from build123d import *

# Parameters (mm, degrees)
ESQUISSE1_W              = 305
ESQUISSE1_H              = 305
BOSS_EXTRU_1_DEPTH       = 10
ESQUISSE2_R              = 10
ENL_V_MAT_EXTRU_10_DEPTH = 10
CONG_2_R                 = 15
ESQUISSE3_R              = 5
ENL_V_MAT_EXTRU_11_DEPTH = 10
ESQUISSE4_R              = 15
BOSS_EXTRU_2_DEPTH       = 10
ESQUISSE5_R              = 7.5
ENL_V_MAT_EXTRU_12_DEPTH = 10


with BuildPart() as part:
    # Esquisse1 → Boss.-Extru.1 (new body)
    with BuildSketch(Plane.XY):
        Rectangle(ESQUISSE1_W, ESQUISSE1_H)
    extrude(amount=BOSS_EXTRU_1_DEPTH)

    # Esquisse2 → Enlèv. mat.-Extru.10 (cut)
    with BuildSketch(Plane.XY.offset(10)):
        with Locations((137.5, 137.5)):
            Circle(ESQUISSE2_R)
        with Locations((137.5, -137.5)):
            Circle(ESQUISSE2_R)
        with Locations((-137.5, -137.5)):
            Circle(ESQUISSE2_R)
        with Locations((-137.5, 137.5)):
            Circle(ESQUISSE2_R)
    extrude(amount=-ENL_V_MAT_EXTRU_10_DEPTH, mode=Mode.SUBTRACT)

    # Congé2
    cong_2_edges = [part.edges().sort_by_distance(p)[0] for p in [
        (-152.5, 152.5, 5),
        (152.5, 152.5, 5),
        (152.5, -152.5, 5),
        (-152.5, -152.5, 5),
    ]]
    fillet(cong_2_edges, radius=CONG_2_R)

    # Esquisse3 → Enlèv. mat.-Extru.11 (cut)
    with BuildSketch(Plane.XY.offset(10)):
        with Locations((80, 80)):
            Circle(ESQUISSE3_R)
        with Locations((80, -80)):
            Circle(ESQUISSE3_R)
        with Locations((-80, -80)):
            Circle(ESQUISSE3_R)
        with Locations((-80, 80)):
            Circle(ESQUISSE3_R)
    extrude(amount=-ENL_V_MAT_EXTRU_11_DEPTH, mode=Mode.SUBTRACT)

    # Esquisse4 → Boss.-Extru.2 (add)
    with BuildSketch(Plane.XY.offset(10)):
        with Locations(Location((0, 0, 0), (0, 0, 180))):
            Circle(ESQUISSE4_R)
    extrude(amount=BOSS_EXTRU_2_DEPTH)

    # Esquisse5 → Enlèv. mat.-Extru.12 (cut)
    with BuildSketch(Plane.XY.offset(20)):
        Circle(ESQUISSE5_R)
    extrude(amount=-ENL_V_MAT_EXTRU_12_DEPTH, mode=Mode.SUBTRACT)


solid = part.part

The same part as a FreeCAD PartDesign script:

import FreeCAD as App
import Part
import Sketcher

V = App.Vector


def edges_at(feature, points):
    """Names of the edges that pass closest to the given points."""
    edges = feature.Shape.Edges
    near = lambda p: min(range(len(edges)), key=lambda i: edges[i].distToShape(Part.Vertex(*p))[0])
    return sorted({f"Edge{near(p) + 1}" for p in points})

doc = App.newDocument("Part")
params = doc.addObject("Spreadsheet::Sheet", "Params")
for row, (alias, value) in enumerate([
    ("sketch1_width", "305 mm"),
    ("pad1_length", "10 mm"),
    ("sketch2_diameter", "20 mm"),
    ("pocket1_length", "10 mm"),
    ("fillet_radius", "15 mm"),
    ("sketch3_diameter", "10 mm"),
    ("pocket2_length", "10 mm"),
    ("sketch4_diameter", "30 mm"),
    ("pad2_length", "10 mm"),
    ("sketch5_diameter", "15 mm"),
    ("pocket3_length", "10 mm"),
], start=1):
    params.set(f"A{row}", alias)
    params.set(f"B{row}", "=" + value)
    params.setAlias(f"B{row}", alias)

body = doc.addObject("PartDesign::Body", "Body")

sketch1 = body.newObject("Sketcher::SketchObject", "Sketch")
sketch1.AttachmentSupport = (doc.getObject("XY_Plane"), [""])
sketch1.MapMode = "FlatFace"
sketch1.addGeometry(Part.LineSegment(V(-152, 152, 0), V(-152, -152, 0)), False)
sketch1.addGeometry(Part.LineSegment(V(-152, -152, 0), V(152, -152, 0)), False)
sketch1.addGeometry(Part.LineSegment(V(152, -152, 0), V(152, 152, 0)), False)
sketch1.addGeometry(Part.LineSegment(V(152, 152, 0), V(-152, 152, 0)), False)
sketch1.addConstraint(Sketcher.Constraint("Coincident", 0, 2, 1, 1))
sketch1.addConstraint(Sketcher.Constraint("Coincident", 1, 2, 2, 1))
sketch1.addConstraint(Sketcher.Constraint("Coincident", 2, 2, 3, 1))
sketch1.addConstraint(Sketcher.Constraint("Coincident", 3, 2, 0, 1))
sketch1.addConstraint(Sketcher.Constraint("Vertical", 0))
sketch1.addConstraint(Sketcher.Constraint("Horizontal", 1))
sketch1.addConstraint(Sketcher.Constraint("Vertical", 2))
sketch1.addConstraint(Sketcher.Constraint("Horizontal", 3))
sketch1.addConstraint(Sketcher.Constraint("Symmetric", 0, 2, 2, 2, -1, 1))
sketch1.addConstraint(Sketcher.Constraint("Equal", 3, 0))
sketch1.addConstraint(Sketcher.Constraint("DistanceX", 1, 1, 1, 2, 305.0))
sketch1.setExpression("Constraints[10]", "Params.sketch1_width")
pad1 = body.newObject("PartDesign::Pad", "Pad")
pad1.Profile = sketch1
pad1.setExpression("Length", "Params.pad1_length")

sketch2 = body.newObject("Sketcher::SketchObject", "Sketch001")
sketch2.AttachmentSupport = (doc.getObject("XY_Plane"), [""])
sketch2.MapMode = "FlatFace"
sketch2.AttachmentOffset = App.Placement(V(0, 0, 10), App.Rotation())
sketch2.addGeometry(Part.Circle(V(138, 138, 0), V(0, 0, 1), 10), False)
sketch2.addGeometry(Part.Circle(V(138, -138, 0), V(0, 0, 1), 10), False)
sketch2.addGeometry(Part.Circle(V(-138, -138, 0), V(0, 0, 1), 10), False)
sketch2.addGeometry(Part.Circle(V(-138, 138, 0), V(0, 0, 1), 10), False)
sketch2.addConstraint(Sketcher.Constraint("Equal", 0, 1))
sketch2.addConstraint(Sketcher.Constraint("Equal", 1, 2))
sketch2.addConstraint(Sketcher.Constraint("Equal", 2, 3))
sketch2.addConstraint(Sketcher.Constraint("Symmetric", 0, 3, 2, 3, -1, 1))
sketch2.addConstraint(Sketcher.Constraint("Symmetric", 1, 3, 3, 3, -1, 1))
sketch2.addConstraint(Sketcher.Constraint("Symmetric", 1, 3, 2, 3, -2))
sketch2.addConstraint(Sketcher.Constraint("Diameter", 0, 20.0))
sketch2.addConstraint(Sketcher.Constraint("DistanceY", 1, 3, 0, 3, 275.0))
sketch2.addConstraint(Sketcher.Constraint("DistanceX", 2, 3, 1, 3, 275.0))
sketch2.setExpression("Constraints[6]", "Params.sketch2_diameter")
pocket1 = body.newObject("PartDesign::Pocket", "Pocket")
pocket1.Profile = sketch2
pocket1.setExpression("Length", "Params.pocket1_length")
doc.recompute()

fillet = body.newObject("PartDesign::Fillet", "Fillet")
fillet.Base = (pocket1, edges_at(pocket1, [
    (-152.5, 152.5, 5),
    (152.5, 152.5, 5),
    (152.5, -152.5, 5),
    (-152.5, -152.5, 5),
]))
fillet.setExpression("Radius", "Params.fillet_radius")

sketch3 = body.newObject("Sketcher::SketchObject", "Sketch002")
sketch3.AttachmentSupport = (doc.getObject("XY_Plane"), [""])
sketch3.MapMode = "FlatFace"
sketch3.AttachmentOffset = App.Placement(V(0, 0, 10), App.Rotation())
sketch3.addGeometry(Part.Circle(V(80, 80, 0), V(0, 0, 1), 5), False)
sketch3.addGeometry(Part.Circle(V(80, -80, 0), V(0, 0, 1), 5), False)
sketch3.addGeometry(Part.Circle(V(-80, -80, 0), V(0, 0, 1), 5), False)
sketch3.addGeometry(Part.Circle(V(-80, 80, 0), V(0, 0, 1), 5), False)
sketch3.addConstraint(Sketcher.Constraint("Equal", 0, 1))
sketch3.addConstraint(Sketcher.Constraint("Equal", 1, 2))
sketch3.addConstraint(Sketcher.Constraint("Equal", 2, 3))
sketch3.addConstraint(Sketcher.Constraint("Symmetric", 0, 3, 2, 3, -1, 1))
sketch3.addConstraint(Sketcher.Constraint("Symmetric", 1, 3, 3, 3, -1, 1))
sketch3.addConstraint(Sketcher.Constraint("Symmetric", 1, 3, 2, 3, -2))
sketch3.addConstraint(Sketcher.Constraint("Diameter", 0, 10.0))
sketch3.addConstraint(Sketcher.Constraint("DistanceX", -1, 1, 0, 3, 80.0))
sketch3.addConstraint(Sketcher.Constraint("DistanceY", -1, 1, 0, 3, 80.0))
sketch3.setExpression("Constraints[6]", "Params.sketch3_diameter")
pocket2 = body.newObject("PartDesign::Pocket", "Pocket001")
pocket2.Profile = sketch3
pocket2.setExpression("Length", "Params.pocket2_length")

sketch4 = body.newObject("Sketcher::SketchObject", "Sketch003")
sketch4.AttachmentSupport = (doc.getObject("XY_Plane"), [""])
sketch4.MapMode = "FlatFace"
sketch4.AttachmentOffset = App.Placement(V(0, 0, 10), App.Rotation())
sketch4.addGeometry(Part.Circle(V(0, 0, 0), V(0, 0, 1), 15), False)
sketch4.addConstraint(Sketcher.Constraint("Coincident", 0, 3, -1, 1))
sketch4.addConstraint(Sketcher.Constraint("Diameter", 0, 30.0))
sketch4.setExpression("Constraints[1]", "Params.sketch4_diameter")
pad2 = body.newObject("PartDesign::Pad", "Pad001")
pad2.Profile = sketch4
pad2.setExpression("Length", "Params.pad2_length")

sketch5 = body.newObject("Sketcher::SketchObject", "Sketch004")
sketch5.AttachmentSupport = (doc.getObject("XY_Plane"), [""])
sketch5.MapMode = "FlatFace"
sketch5.AttachmentOffset = App.Placement(V(0, 0, 20), App.Rotation())
sketch5.addGeometry(Part.Circle(V(0, 0, 0), V(0, 0, 1), 8), False)
sketch5.addConstraint(Sketcher.Constraint("Coincident", 0, 3, -1, 1))
sketch5.addConstraint(Sketcher.Constraint("Diameter", 0, 15.0))
sketch5.setExpression("Constraints[1]", "Params.sketch5_diameter")
pocket3 = body.newObject("PartDesign::Pocket", "Pocket002")
pocket3.Profile = sketch5
pocket3.setExpression("Length", "Params.pocket3_length")

doc.recompute()
